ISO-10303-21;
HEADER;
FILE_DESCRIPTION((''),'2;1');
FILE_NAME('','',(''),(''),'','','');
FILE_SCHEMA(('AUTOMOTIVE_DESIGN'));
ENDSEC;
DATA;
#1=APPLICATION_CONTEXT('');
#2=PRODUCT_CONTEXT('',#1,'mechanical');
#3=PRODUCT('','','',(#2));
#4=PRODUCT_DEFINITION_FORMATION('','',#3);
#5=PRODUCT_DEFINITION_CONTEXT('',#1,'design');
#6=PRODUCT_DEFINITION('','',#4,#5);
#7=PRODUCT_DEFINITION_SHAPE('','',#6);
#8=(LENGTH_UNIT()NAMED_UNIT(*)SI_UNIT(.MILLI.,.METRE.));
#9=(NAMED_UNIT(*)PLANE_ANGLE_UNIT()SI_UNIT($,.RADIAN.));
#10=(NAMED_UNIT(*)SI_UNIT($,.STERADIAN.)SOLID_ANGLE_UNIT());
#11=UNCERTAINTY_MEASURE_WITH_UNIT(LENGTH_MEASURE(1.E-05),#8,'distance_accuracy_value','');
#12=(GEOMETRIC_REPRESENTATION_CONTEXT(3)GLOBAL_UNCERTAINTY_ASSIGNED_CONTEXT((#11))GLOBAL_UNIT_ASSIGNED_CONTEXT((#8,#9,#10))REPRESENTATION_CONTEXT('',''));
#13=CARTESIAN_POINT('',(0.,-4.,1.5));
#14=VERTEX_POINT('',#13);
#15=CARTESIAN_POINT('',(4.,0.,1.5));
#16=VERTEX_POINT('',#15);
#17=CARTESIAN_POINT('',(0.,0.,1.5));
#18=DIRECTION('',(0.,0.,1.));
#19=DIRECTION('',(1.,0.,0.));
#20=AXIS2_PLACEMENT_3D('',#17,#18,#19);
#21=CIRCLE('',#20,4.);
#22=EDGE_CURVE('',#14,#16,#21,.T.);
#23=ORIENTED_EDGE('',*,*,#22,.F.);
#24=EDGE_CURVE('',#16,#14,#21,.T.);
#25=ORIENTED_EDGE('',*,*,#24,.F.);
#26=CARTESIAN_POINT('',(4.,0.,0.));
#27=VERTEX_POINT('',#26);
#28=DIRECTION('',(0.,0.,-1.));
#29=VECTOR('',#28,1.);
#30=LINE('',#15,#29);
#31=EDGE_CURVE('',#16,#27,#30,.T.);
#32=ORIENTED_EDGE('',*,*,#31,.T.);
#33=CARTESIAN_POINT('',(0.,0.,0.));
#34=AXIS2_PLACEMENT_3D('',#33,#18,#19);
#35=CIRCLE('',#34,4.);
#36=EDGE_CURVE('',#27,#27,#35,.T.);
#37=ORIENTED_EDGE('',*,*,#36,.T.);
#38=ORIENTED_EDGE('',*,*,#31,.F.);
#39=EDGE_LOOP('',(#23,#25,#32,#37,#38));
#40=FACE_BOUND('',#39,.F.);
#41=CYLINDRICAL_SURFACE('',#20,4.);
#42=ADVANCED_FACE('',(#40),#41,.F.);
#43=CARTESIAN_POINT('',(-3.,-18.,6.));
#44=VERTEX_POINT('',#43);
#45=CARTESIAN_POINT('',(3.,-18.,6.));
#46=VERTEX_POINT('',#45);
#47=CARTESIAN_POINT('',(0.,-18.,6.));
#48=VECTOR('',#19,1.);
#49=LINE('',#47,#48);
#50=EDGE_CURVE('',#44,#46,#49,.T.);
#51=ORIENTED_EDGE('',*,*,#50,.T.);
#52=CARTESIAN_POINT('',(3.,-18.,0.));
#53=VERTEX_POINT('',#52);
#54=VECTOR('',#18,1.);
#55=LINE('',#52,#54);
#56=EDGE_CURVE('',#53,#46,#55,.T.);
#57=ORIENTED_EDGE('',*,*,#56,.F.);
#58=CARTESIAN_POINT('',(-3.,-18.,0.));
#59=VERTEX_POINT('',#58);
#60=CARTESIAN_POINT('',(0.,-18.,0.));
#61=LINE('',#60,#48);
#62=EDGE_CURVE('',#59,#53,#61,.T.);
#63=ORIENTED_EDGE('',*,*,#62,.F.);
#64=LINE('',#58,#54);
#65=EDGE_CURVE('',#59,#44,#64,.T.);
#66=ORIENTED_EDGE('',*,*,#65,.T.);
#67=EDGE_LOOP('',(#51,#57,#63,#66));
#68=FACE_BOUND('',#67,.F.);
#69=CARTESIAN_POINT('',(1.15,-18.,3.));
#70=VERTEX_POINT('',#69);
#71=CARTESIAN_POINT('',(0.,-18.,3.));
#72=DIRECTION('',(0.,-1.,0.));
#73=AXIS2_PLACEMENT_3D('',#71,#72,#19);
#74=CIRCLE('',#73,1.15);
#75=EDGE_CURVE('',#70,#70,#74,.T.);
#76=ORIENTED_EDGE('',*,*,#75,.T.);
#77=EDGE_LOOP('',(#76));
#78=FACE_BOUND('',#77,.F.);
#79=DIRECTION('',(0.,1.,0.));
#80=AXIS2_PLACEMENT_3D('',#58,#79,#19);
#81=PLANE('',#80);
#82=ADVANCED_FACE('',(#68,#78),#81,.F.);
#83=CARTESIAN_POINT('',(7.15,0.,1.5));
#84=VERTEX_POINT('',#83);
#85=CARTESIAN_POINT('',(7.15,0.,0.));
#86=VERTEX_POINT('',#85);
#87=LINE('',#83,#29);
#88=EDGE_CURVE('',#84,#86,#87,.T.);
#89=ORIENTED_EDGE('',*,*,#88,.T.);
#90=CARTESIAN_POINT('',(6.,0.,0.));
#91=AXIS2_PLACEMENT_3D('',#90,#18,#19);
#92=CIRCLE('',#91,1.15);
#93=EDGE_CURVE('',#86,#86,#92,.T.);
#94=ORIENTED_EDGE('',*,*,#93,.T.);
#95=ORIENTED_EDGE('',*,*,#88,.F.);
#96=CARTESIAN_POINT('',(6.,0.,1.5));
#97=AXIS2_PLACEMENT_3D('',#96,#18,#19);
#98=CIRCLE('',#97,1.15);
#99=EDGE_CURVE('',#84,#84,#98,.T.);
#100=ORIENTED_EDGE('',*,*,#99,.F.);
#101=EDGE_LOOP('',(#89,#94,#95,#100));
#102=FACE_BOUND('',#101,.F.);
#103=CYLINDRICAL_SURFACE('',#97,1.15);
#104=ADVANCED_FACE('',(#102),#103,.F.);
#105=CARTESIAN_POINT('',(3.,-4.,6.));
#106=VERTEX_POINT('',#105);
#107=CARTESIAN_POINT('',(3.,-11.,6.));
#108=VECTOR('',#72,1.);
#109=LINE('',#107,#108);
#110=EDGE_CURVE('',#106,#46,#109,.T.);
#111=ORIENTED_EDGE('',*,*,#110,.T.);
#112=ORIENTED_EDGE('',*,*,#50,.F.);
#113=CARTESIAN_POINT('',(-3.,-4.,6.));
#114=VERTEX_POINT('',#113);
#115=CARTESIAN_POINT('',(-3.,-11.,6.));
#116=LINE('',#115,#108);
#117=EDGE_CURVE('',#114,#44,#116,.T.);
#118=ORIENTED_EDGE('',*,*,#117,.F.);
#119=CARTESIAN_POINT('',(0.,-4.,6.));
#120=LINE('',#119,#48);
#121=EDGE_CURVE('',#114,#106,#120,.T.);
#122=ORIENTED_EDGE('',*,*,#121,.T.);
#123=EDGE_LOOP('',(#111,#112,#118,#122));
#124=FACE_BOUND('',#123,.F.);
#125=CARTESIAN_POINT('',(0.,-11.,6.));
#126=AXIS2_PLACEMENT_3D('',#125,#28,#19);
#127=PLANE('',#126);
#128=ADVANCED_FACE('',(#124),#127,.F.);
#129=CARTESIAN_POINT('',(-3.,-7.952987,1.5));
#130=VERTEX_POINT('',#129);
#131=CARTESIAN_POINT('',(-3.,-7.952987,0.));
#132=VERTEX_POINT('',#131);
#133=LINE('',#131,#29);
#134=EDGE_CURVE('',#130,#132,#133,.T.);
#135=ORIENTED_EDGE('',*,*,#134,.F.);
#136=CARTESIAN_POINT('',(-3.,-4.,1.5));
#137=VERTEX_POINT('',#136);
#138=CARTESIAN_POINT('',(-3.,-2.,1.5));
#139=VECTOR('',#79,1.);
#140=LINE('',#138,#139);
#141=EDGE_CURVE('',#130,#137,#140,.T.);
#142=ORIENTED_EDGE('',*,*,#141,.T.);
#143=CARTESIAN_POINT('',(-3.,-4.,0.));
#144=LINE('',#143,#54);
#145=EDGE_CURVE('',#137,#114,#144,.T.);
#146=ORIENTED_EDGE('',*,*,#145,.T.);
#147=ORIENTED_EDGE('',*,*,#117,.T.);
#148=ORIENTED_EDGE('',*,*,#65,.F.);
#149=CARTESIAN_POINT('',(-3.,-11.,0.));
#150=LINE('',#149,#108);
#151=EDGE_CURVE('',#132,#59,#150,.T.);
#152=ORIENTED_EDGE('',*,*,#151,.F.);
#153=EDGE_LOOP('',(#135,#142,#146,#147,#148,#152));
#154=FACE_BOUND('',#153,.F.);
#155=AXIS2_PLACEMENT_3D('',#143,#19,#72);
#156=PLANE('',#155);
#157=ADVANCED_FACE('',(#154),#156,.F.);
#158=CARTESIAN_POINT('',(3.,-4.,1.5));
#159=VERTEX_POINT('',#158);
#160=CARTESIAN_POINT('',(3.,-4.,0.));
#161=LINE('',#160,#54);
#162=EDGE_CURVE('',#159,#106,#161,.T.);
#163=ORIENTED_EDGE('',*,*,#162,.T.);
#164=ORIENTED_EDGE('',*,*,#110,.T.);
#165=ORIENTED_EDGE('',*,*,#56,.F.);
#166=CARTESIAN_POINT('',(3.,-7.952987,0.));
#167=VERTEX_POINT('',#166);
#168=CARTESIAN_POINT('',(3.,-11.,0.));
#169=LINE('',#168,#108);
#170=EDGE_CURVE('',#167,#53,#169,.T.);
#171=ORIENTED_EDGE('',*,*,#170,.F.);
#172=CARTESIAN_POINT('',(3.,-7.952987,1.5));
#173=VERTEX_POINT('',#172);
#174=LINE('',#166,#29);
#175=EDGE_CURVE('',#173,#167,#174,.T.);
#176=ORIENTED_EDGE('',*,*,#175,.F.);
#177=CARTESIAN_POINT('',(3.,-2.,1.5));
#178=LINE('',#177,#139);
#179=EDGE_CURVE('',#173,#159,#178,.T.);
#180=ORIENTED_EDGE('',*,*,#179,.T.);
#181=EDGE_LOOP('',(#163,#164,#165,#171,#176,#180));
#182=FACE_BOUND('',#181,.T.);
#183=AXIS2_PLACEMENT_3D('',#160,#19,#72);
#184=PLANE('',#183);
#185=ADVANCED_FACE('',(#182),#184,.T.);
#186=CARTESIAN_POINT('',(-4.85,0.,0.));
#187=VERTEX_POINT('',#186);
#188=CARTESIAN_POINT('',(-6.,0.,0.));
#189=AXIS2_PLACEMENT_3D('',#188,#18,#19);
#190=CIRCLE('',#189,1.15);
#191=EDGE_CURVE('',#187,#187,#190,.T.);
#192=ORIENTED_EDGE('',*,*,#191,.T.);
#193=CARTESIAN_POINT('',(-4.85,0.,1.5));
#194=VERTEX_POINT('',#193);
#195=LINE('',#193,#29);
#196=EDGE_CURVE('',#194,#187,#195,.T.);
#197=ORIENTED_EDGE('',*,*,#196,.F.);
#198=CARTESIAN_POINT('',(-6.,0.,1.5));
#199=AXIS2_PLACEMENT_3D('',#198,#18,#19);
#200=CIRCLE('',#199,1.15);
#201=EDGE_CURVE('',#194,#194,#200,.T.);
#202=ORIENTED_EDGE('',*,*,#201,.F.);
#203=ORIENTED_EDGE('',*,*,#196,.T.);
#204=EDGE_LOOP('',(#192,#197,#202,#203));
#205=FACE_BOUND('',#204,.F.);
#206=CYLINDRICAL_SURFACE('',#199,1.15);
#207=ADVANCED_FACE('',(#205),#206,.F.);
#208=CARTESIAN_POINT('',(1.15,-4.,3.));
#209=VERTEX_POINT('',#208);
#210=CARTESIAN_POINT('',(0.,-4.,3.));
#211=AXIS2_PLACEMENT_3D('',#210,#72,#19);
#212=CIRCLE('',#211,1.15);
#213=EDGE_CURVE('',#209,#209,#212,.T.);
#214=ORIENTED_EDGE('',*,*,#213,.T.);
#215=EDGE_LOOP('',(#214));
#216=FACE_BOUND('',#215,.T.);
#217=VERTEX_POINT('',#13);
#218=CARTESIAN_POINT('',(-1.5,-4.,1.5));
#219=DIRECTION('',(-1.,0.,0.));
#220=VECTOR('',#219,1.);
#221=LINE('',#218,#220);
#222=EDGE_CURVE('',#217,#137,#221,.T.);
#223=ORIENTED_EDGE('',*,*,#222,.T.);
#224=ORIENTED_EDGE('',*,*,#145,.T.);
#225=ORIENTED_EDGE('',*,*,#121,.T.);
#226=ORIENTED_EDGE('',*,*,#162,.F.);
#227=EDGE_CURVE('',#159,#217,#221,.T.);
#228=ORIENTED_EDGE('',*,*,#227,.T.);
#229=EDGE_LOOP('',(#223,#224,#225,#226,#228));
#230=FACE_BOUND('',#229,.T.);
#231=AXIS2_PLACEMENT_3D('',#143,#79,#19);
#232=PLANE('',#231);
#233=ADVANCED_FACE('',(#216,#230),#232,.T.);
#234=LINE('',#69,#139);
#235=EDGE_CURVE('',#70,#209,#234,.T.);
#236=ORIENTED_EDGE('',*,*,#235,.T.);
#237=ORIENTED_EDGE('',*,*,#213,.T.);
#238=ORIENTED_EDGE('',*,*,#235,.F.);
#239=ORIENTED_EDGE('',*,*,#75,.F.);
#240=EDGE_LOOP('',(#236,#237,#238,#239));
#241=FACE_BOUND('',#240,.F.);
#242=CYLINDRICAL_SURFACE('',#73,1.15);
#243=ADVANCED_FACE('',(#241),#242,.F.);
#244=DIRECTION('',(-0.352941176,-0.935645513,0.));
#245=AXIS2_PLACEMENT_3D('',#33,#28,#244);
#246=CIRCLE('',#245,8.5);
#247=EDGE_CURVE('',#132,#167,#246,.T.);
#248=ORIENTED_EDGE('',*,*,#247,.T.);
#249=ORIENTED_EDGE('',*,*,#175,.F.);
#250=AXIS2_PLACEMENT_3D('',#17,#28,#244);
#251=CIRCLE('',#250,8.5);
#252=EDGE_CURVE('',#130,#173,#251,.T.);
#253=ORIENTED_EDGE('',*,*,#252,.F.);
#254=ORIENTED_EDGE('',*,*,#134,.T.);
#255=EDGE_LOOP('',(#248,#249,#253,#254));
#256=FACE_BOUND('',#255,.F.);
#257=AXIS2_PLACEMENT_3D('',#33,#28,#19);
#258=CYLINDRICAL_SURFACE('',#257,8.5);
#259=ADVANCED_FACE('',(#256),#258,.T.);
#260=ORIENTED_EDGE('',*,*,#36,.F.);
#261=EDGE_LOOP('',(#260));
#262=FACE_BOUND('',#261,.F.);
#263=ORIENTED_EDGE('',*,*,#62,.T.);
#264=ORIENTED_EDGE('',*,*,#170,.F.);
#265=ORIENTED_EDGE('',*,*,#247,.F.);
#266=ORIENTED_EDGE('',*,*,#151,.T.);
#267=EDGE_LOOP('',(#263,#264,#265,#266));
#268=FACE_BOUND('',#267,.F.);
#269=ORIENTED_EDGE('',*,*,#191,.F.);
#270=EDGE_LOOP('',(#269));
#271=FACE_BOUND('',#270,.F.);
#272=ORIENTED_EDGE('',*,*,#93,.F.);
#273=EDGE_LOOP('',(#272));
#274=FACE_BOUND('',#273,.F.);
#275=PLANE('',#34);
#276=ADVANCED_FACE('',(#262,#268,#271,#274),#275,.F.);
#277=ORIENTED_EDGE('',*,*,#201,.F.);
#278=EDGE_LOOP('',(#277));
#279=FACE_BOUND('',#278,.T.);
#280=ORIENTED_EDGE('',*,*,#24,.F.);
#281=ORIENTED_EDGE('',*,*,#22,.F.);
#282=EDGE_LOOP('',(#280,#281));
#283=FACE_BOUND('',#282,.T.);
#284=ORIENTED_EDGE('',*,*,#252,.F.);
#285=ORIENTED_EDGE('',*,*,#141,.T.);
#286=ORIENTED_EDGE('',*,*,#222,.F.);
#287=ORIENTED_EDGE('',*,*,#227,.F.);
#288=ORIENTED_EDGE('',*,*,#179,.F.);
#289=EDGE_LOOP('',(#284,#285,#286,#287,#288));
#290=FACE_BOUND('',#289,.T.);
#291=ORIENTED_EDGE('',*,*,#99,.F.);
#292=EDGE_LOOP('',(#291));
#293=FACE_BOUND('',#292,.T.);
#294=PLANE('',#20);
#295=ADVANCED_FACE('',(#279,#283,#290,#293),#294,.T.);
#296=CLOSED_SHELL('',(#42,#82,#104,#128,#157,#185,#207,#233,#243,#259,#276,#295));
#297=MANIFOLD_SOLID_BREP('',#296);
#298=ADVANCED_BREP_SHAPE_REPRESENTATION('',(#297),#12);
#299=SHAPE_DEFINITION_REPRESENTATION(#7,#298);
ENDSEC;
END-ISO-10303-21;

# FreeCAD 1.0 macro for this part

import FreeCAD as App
import Part
import Sketcher
from FreeCAD import Vector

doc = App.newDocument("Part")
body = doc.addObject("PartDesign::Body", "Body")

sketch1 = doc.addObject("Sketcher::SketchObject", "Sketch")
body.addObject(sketch1)
sketch1.AttachmentSupport = (doc.XY_Plane, [""])
sketch1.MapMode = "FlatFace"
sketch1.addGeometry(Part.Circle(Vector(0, 0, 0), Vector(0, 0, 1), 8.5), False)
sketch1.addConstraint(Sketcher.Constraint("Coincident", 0, 3, -1, 1))
sketch1.addConstraint(Sketcher.Constraint("Diameter", 0, 17.0))
pad1 = doc.addObject("PartDesign::Pad", "Pad")
body.addObject(pad1)
pad1.Profile = sketch1
pad1.Length = 1.5

sketch2 = doc.addObject("Sketcher::SketchObject", "Sketch001")
body.addObject(sketch2)
sketch2.AttachmentSupport = (doc.XY_Plane, [""])
sketch2.MapMode = "FlatFace"
sketch2.AttachmentOffset = App.Placement(Vector(0, 0, 1.5), App.Rotation())
sketch2.addGeometry(Part.Circle(Vector(0, 0, 0), Vector(0, 0, 1), 4), False)
sketch2.addGeometry(Part.Circle(Vector(-6, 0, 0), Vector(0, 0, 1), 1.15), False)
sketch2.addGeometry(Part.Circle(Vector(6, 0, 0), Vector(0, 0, 1), 1.15), False)
sketch2.addConstraint(Sketcher.Constraint("Coincident", 0, 3, -1, 1))
sketch2.addConstraint(Sketcher.Constraint("Equal", 1, 2))
sketch2.addConstraint(Sketcher.Constraint("Symmetric", 1, 3, 2, 3, -1, 1))
sketch2.addConstraint(Sketcher.Constraint("PointOnObject", 1, 3, -1))
sketch2.addConstraint(Sketcher.Constraint("Diameter", 0, 8.0))
sketch2.addConstraint(Sketcher.Constraint("Diameter", 1, 2.3))
sketch2.addConstraint(Sketcher.Constraint("DistanceX", 1, 3, -1, 1, 6.0))
pocket1 = doc.addObject("PartDesign::Pocket", "Pocket")
body.addObject(pocket1)
pocket1.Profile = sketch2
pocket1.Length = 5

sketch3 = doc.addObject("Sketcher::SketchObject", "Sketch002")
body.addObject(sketch3)
sketch3.AttachmentSupport = (doc.XY_Plane, [""])
sketch3.MapMode = "FlatFace"
sketch3.addGeometry(Part.LineSegment(Vector(-3, -18, 0), Vector(-3, -4, 0)), False)
sketch3.addGeometry(Part.LineSegment(Vector(-3, -4, 0), Vector(3, -4, 0)), False)
sketch3.addGeometry(Part.LineSegment(Vector(3, -4, 0), Vector(3, -18, 0)), False)
sketch3.addGeometry(Part.LineSegment(Vector(3, -18, 0), Vector(-3, -18, 0)), False)
sketch3.addConstraint(Sketcher.Constraint("Coincident", 0, 2, 1, 1))
sketch3.addConstraint(Sketcher.Constraint("Coincident", 1, 2, 2, 1))
sketch3.addConstraint(Sketcher.Constraint("Coincident", 2, 2, 3, 1))
sketch3.addConstraint(Sketcher.Constraint("Coincident", 3, 2, 0, 1))
sketch3.addConstraint(Sketcher.Constraint("Vertical", 0))
sketch3.addConstraint(Sketcher.Constraint("Horizontal", 1))
sketch3.addConstraint(Sketcher.Constraint("Vertical", 2))
sketch3.addConstraint(Sketcher.Constraint("Horizontal", 3))
sketch3.addConstraint(Sketcher.Constraint("DistanceX", 1, 1, 1, 2, 6.0))
sketch3.addConstraint(Sketcher.Constraint("DistanceY", 0, 1, 0, 2, 14.0))
sketch3.addConstraint(Sketcher.Constraint("DistanceX", 0, 2, -1, 1, 3.0))
sketch3.addConstraint(Sketcher.Constraint("DistanceY", 0, 2, -1, 1, 4.0))
pad2 = doc.addObject("PartDesign::Pad", "Pad001")
body.addObject(pad2)
pad2.Profile = sketch3
pad2.Length = 6

sketch4 = doc.addObject("Sketcher::SketchObject", "Sketch003")
body.addObject(sketch4)
sketch4.AttachmentSupport = (doc.XZ_Plane, [""])
sketch4.MapMode = "FlatFace"
sketch4.AttachmentOffset = App.Placement(Vector(0, 0, 18), App.Rotation())
sketch4.addGeometry(Part.Circle(Vector(0, 3, 0), Vector(0, 0, 1), 1.15), False)
sketch4.addConstraint(Sketcher.Constraint("PointOnObject", 0, 3, -2))
sketch4.addConstraint(Sketcher.Constraint("Diameter", 0, 2.3))
sketch4.addConstraint(Sketcher.Constraint("DistanceY", -1, 1, 0, 3, 3.0))
pocket2 = doc.addObject("PartDesign::Pocket", "Pocket001")
body.addObject(pocket2)
pocket2.Profile = sketch4
pocket2.Length = 15

doc.recompute()
